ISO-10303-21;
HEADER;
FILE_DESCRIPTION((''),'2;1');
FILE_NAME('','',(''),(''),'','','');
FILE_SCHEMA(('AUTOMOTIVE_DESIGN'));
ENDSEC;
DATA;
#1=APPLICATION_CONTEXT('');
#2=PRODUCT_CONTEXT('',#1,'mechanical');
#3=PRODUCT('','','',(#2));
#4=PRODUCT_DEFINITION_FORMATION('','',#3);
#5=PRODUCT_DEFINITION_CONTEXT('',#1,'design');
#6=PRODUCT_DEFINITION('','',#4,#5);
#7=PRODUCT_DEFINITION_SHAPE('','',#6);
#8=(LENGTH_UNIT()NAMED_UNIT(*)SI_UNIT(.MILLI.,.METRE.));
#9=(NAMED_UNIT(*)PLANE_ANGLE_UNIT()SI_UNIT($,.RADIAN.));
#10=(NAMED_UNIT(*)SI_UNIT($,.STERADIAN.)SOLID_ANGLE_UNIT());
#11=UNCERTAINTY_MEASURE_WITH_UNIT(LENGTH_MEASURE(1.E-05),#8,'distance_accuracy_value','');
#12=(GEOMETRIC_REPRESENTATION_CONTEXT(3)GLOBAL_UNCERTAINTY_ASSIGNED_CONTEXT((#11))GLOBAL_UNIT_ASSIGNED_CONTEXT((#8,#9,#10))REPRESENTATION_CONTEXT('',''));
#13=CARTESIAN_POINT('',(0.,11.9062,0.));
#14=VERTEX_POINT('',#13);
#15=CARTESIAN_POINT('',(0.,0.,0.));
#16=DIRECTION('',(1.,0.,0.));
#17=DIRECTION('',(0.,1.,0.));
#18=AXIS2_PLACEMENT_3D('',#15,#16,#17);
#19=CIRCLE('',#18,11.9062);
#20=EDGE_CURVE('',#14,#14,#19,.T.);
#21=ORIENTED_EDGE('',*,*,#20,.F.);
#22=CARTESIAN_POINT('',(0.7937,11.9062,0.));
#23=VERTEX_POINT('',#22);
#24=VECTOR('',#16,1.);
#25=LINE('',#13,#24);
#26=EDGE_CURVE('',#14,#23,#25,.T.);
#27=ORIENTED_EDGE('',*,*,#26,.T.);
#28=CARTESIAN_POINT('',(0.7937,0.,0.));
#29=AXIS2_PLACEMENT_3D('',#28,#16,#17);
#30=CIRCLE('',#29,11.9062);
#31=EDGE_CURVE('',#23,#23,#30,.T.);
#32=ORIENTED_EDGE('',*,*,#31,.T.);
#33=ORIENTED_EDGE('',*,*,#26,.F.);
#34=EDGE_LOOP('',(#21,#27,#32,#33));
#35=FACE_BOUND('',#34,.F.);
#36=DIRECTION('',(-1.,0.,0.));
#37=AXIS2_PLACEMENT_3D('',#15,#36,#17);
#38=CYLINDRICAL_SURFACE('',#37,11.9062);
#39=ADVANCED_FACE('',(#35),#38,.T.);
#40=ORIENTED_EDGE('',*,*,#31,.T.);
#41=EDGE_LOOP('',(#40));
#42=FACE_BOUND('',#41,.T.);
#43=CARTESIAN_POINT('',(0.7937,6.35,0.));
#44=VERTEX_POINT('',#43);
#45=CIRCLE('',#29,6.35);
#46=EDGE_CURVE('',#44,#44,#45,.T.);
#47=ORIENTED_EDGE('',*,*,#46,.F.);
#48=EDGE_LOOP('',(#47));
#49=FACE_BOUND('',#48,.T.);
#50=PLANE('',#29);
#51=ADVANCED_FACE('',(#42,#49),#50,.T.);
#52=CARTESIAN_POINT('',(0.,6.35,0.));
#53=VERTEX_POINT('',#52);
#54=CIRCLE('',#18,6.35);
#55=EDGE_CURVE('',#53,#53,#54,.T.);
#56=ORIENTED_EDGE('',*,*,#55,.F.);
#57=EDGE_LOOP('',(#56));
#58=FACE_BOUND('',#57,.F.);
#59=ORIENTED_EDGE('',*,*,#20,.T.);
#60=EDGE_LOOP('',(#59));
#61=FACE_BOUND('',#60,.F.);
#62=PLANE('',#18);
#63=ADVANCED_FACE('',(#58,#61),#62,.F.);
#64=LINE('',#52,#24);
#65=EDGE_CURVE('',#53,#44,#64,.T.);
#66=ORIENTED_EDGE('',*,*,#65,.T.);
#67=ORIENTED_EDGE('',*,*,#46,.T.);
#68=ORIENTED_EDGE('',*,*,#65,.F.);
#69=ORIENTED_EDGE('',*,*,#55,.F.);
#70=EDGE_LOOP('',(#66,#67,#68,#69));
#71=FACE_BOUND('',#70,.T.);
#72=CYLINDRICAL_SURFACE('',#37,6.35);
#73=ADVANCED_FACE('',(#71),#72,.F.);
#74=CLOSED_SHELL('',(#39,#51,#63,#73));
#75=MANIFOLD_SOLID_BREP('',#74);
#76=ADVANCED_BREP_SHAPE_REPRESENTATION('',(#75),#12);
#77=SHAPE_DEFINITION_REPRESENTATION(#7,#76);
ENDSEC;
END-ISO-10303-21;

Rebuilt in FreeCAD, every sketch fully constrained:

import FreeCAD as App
import Part
import Sketcher
Q = App.Units.Quantity

doc = App.newDocument("Part")
body = doc.addObject("PartDesign::Body", "Body")

# Sketch on YZ plane
sketch1 = body.newObject("Sketcher::SketchObject", "Sketch")
sketch1.AttachmentSupport = (doc.getObject("YZ_Plane"), [""])
sketch1.MapMode = "FlatFace"
sketch1.addGeometry(Part.Circle(App.Vector(0, 0, 0), App.Vector(0, 0, 1), 11.9062), False)
sketch1.addGeometry(Part.Circle(App.Vector(0, 0, 0), App.Vector(0, 0, 1), 6.35), False)
sketch1.addConstraint(Sketcher.Constraint("Coincident", 0, 3, -1, 1))
sketch1.addConstraint(Sketcher.Constraint("Coincident", 1, 3, -1, 1))
sketch1.addConstraint(Sketcher.Constraint("Diameter", 1, Q("0.5 in")))
sketch1.addConstraint(Sketcher.Constraint("Diameter", 0, Q("0.9375 in")))
pad1 = body.newObject("PartDesign::Pad", "Pad")
pad1.Profile = sketch1
pad1.Length = Q("0.031248 in")

doc.recompute()
